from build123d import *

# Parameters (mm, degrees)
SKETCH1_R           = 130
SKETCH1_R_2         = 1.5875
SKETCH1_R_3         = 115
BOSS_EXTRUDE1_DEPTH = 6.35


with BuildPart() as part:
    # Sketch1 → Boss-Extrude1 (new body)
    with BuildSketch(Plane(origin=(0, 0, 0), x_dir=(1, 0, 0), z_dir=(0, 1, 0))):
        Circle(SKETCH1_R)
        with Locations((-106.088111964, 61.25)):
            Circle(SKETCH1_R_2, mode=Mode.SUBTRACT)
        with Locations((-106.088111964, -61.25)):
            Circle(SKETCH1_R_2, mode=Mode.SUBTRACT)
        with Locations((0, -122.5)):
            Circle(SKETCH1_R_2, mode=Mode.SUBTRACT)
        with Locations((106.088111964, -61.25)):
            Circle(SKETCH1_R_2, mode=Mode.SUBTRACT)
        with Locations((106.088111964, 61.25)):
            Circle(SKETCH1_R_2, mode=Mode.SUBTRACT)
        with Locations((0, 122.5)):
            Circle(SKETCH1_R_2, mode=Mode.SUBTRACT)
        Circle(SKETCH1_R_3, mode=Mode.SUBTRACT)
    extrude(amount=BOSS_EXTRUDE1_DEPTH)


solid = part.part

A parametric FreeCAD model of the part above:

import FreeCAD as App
import Part
import Sketcher
Q = App.Units.Quantity

doc = App.newDocument("Part")
body = doc.addObject("PartDesign::Body", "Body")

# Sketch on XZ plane
sketch1 = doc.addObject("Sketcher::SketchObject", "Sketch")
body.addObject(sketch1)
sketch1.AttachmentSupport = (doc.XZ_Plane, [""])
sketch1.MapMode = "FlatFace"
sketch1.addGeometry([
    Part.Circle(App.Vector(0, 0, 0), App.Vector(0, 0, 1), 130),  # 0
    Part.Circle(App.Vector(-106.1, 61.2, 0), App.Vector(0, 0, 1), 1.6),  # 1
    Part.Circle(App.Vector(0, 122.5, 0), App.Vector(0, 0, 1), 1.6),  # 2
    Part.Circle(App.Vector(106.1, 61.2, 0), App.Vector(0, 0, 1), 1.6),  # 3
    Part.Circle(App.Vector(-106.1, -61.2, 0), App.Vector(0, 0, 1), 1.6),  # 4
    Part.Circle(App.Vector(0, 0, 0), App.Vector(0, 0, 1), 115),  # 5
    Part.Circle(App.Vector(106.1, -61.2, 0), App.Vector(0, 0, 1), 1.6),  # 6
    Part.Circle(App.Vector(0, -122.5, 0), App.Vector(0, 0, 1), 1.6),  # 7
], False)
sketch1.addConstraint([
    Sketcher.Constraint("Coincident", 0, 3, -1, 1),
    Sketcher.Constraint("Coincident", 5, 3, -1, 1),
    Sketcher.Constraint("Equal", 1, 2),
    Sketcher.Constraint("Equal", 2, 3),
    Sketcher.Constraint("Equal", 3, 4),
    Sketcher.Constraint("Equal", 4, 6),
    Sketcher.Constraint("Equal", 6, 7),
    Sketcher.Constraint("Symmetric", 3, 3, 4, 3, -1, 1),
    Sketcher.Constraint("Symmetric", 1, 3, 6, 3, -1, 1),
    Sketcher.Constraint("Symmetric", 2, 3, 7, 3, -1, 1),
    Sketcher.Constraint("Symmetric", 1, 3, 3, 3, -2),
    Sketcher.Constraint("PointOnObject", 2, 3, -2),
    Sketcher.Constraint("Diameter", 0, Q("260 mm")),
    Sketcher.Constraint("Diameter", 5, Q("230 mm")),
    Sketcher.Constraint("Diameter", 1, Q("3.175 mm")),
    Sketcher.Constraint("DistanceY", -1, 1, 2, 3, Q("122.5 mm")),
    Sketcher.Constraint("DistanceY", 4, 3, 1, 3, Q("122.5 mm")),
    Sketcher.Constraint("DistanceX", 1, 3, -1, 1, Q("106.088112 mm")),
])
pad1 = doc.addObject("PartDesign::Pad", "Pad")
body.addObject(pad1)
pad1.Profile = sketch1
pad1.Length = 6.35
pad1.Reversed = True

doc.recompute()
